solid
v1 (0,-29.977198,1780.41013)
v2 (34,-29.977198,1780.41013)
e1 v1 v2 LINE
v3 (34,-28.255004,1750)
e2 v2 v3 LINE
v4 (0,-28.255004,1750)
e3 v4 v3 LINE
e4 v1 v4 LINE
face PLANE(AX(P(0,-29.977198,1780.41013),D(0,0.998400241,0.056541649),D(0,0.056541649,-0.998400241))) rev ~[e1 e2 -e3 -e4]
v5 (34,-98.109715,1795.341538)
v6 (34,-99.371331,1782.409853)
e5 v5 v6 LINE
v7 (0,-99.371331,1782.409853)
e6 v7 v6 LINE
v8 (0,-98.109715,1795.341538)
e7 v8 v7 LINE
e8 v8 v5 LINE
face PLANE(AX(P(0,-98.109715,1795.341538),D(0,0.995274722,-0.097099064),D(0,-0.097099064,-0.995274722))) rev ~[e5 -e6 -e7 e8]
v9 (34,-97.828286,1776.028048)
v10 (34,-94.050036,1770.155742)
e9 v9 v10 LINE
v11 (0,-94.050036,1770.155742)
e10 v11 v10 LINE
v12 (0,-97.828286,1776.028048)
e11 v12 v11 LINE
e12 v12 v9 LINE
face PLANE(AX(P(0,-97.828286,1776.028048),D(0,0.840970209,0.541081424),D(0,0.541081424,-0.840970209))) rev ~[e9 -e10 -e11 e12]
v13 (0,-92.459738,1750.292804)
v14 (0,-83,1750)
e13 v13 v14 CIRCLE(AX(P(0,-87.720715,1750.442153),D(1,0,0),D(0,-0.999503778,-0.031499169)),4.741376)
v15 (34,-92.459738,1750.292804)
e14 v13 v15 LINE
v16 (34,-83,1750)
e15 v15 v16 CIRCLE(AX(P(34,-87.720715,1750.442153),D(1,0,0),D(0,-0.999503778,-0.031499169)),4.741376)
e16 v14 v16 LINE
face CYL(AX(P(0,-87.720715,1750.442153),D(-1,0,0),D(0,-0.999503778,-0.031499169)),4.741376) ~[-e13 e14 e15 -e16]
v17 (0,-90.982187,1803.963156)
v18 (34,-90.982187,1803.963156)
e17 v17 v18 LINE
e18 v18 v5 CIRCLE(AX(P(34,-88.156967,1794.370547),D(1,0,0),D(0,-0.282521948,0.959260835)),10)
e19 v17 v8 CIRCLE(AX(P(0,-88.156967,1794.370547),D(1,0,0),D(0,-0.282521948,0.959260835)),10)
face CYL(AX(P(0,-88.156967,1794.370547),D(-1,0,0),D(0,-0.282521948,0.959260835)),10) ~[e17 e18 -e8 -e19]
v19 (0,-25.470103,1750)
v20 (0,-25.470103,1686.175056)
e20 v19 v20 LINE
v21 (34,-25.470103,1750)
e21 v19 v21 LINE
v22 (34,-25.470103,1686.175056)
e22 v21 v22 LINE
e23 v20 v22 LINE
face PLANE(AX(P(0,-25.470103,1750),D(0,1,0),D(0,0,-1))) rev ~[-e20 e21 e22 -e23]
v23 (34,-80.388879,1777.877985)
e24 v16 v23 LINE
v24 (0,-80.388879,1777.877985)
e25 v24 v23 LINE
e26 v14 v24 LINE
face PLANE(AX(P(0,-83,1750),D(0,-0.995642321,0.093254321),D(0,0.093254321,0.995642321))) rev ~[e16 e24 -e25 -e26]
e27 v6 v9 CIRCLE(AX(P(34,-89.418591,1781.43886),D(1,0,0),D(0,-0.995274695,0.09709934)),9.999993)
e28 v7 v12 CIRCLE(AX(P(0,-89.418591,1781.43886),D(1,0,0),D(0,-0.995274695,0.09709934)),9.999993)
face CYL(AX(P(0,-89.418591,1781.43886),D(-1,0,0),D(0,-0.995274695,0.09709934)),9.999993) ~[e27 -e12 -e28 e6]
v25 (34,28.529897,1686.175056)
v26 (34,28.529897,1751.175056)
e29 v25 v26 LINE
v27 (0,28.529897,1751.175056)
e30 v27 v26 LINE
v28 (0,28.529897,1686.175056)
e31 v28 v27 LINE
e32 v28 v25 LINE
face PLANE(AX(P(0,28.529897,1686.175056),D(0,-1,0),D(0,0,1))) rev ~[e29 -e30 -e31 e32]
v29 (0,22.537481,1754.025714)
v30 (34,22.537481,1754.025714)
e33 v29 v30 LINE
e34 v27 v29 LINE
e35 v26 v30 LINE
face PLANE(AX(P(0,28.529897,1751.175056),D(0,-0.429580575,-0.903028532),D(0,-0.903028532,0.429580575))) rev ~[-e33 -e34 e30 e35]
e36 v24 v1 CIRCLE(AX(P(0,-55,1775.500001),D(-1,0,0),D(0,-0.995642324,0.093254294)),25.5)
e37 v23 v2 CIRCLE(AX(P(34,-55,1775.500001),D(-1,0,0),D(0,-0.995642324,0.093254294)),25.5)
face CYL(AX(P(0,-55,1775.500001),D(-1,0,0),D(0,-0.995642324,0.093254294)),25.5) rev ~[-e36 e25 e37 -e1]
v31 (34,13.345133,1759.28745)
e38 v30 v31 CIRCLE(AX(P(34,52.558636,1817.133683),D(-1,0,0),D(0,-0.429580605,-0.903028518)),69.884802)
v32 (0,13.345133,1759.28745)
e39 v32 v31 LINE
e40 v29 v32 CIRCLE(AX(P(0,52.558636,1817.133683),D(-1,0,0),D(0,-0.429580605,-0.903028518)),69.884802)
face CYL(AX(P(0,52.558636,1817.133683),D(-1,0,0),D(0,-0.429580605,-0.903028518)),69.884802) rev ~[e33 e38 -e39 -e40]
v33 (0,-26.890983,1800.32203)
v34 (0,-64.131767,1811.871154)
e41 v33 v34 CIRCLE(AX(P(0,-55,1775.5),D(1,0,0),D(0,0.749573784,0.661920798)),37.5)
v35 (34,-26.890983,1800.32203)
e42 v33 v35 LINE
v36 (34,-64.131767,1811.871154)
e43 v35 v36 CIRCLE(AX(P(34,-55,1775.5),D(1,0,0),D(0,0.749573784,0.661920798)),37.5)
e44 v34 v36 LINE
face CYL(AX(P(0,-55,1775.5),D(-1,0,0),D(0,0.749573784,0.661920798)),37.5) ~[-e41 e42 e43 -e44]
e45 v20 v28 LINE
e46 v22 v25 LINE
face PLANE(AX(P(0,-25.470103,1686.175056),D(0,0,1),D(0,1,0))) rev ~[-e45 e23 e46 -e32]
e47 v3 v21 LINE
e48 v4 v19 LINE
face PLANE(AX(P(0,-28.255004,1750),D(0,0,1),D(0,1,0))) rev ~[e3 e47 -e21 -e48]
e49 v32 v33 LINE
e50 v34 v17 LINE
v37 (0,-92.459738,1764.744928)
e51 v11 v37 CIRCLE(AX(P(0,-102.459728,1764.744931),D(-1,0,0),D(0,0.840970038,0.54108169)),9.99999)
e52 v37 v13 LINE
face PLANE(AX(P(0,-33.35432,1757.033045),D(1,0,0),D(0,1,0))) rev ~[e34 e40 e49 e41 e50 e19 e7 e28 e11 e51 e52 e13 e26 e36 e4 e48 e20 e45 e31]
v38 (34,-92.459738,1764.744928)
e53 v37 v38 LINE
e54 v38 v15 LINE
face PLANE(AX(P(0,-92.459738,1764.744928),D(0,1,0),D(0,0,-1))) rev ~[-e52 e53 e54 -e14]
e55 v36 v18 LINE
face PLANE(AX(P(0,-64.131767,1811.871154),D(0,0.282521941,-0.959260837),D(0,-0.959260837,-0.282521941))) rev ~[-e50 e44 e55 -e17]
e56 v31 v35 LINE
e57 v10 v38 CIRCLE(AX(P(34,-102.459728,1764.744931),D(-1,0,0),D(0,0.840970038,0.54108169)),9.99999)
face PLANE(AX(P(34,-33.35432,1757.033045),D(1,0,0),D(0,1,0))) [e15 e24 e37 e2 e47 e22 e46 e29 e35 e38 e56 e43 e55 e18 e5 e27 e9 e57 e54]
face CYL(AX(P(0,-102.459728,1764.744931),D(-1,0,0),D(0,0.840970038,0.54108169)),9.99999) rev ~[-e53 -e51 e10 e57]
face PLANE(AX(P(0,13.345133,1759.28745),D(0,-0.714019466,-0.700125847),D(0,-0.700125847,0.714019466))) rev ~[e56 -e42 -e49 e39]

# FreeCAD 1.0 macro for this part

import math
import FreeCAD as App
import Part
import Sketcher

V = App.Vector

doc = App.newDocument("Part")
body = doc.addObject("PartDesign::Body", "Body")

# Sketch on YZ plane
sketch1 = body.newObject("Sketcher::SketchObject", "Sketch")
sketch1.AttachmentSupport = (doc.getObject("YZ_Plane"), [""])
sketch1.MapMode = "FlatFace"
sketch1.addGeometry([
    Part.ArcOfCircle(Part.Circle(V(-55, 1775.5, 0), V(0, 0, 1), 37.5), math.radians(41.446529), math.radians(104.09402)),  # 0
    Part.LineSegment(V(-64.131767, 1811.871154, 0), V(-90.982187, 1803.963156, 0)),  # 1
    Part.ArcOfCircle(Part.Circle(V(-88.156967, 1794.370547, 0), V(0, 0, 1), 10), math.radians(106.41078), math.radians(174.427854)),  # 2
    Part.LineSegment(V(-98.109715, 1795.341538, 0), V(-99.371331, 1782.409853, 0)),  # 3
    Part.ArcOfCircle(Part.Circle(V(-89.418591, 1781.43886, 0), V(0, 0, 1), 9.999993), math.radians(174.427838), math.radians(212.7573)),  # 4
    Part.LineSegment(V(-97.828286, 1776.028048, 0), V(-94.050036, 1770.155742, 0)),  # 5
    Part.ArcOfCircle(Part.Circle(V(-102.459728, 1764.744931, 0), V(0, 0, 1), 9.99999), math.radians(-0.000015), math.radians(32.757305)),  # 6
    Part.LineSegment(V(-92.459738, 1764.744928, 0), V(-92.459738, 1750.292804, 0)),  # 7
    Part.ArcOfCircle(Part.Circle(V(-87.720715, 1750.442153, 0), V(0, 0, 1), 4.741376), math.radians(-178.194932), math.radians(-5.350849)),  # 8
    Part.LineSegment(V(-83, 1750, 0), V(-80.388879, 1777.877985, 0)),  # 9
    Part.ArcOfCircle(Part.Circle(V(-55, 1775.500001, 0), V(0, 0, 1), 25.5), math.radians(11.101876), math.radians(174.649148)),  # 10
    Part.LineSegment(V(-29.977198, 1780.41013, 0), V(-28.255004, 1750, 0)),  # 11
    Part.LineSegment(V(-28.255004, 1750, 0), V(-25.470103, 1750, 0)),  # 12
    Part.LineSegment(V(-25.470103, 1750, 0), V(-25.470103, 1686.175056, 0)),  # 13
    Part.LineSegment(V(-25.470103, 1686.175056, 0), V(28.529897, 1686.175056, 0)),  # 14
    Part.LineSegment(V(28.529897, 1686.175056, 0), V(28.529897, 1751.175056, 0)),  # 15
    Part.LineSegment(V(28.529897, 1751.175056, 0), V(22.537481, 1754.025714, 0)),  # 16
    Part.ArcOfCircle(Part.Circle(V(52.558636, 1817.133683, 0), V(0, 0, 1), 69.884802), math.radians(-124.133035), math.radians(-115.440947)),  # 17
    Part.LineSegment(V(13.345133, 1759.28745, 0), V(-26.890983, 1800.32203, 0)),  # 18
], False)
sketch1.addConstraint([
    Sketcher.Constraint("Coincident", 0, 2, 1, 1),
    Sketcher.Constraint("Coincident", 1, 2, 2, 1),
    Sketcher.Constraint("Coincident", 2, 2, 3, 1),
    Sketcher.Constraint("Coincident", 3, 2, 4, 1),
    Sketcher.Constraint("Coincident", 4, 2, 5, 1),
    Sketcher.Constraint("Coincident", 5, 2, 6, 2),
    Sketcher.Constraint("Coincident", 6, 1, 7, 1),
    Sketcher.Constraint("Coincident", 7, 2, 8, 1),
    Sketcher.Constraint("Coincident", 8, 2, 9, 1),
    Sketcher.Constraint("Coincident", 9, 2, 10, 2),
    Sketcher.Constraint("Coincident", 10, 1, 11, 1),
    Sketcher.Constraint("Coincident", 11, 2, 12, 1),
    Sketcher.Constraint("Coincident", 12, 2, 13, 1),
    Sketcher.Constraint("Coincident", 13, 2, 14, 1),
    Sketcher.Constraint("Coincident", 14, 2, 15, 1),
    Sketcher.Constraint("Coincident", 15, 2, 16, 1),
    Sketcher.Constraint("Coincident", 16, 2, 17, 2),
    Sketcher.Constraint("Coincident", 17, 1, 18, 1),
    Sketcher.Constraint("Coincident", 18, 2, 0, 1),
    Sketcher.Constraint("Vertical", 7),
    Sketcher.Constraint("Horizontal", 12),
    Sketcher.Constraint("Vertical", 13),
    Sketcher.Constraint("Horizontal", 14),
    Sketcher.Constraint("Vertical", 15),
    Sketcher.Constraint("Coincident", 10, 3, 0, 3),
    Sketcher.Constraint("Radius", 2, 10.0),
    Sketcher.Constraint("Radius", 0, 37.5),
    Sketcher.Constraint("Radius", 10, 25.5),
    Sketcher.Constraint("DistanceX", 14, 1, 14, 2, 54.0),
    Sketcher.Constraint("DistanceY", 15, 1, 15, 2, 65.0),
    Sketcher.Constraint("Distance", 9, 28.0),
    Sketcher.Constraint("DistanceX", 0, 3, -1, 1, 55.0),
    Sketcher.Constraint("DistanceX", 8, 2, -1, 1, 83.0),
    Sketcher.Constraint("DistanceY", -1, 1, 8, 2, 1750.0),
    Sketcher.Constraint("DistanceY", -1, 1, 11, 2, 1750.0),
    Sketcher.Constraint("DistanceY", -1, 1, 0, 3, 1775.5),
    Sketcher.Constraint("Radius", 17, 69.884802),
    Sketcher.Constraint("Radius", 6, 9.99999),
    Sketcher.Constraint("DistanceX", 12, 1, 12, 2, 2.784901),
    Sketcher.Constraint("Radius", 4, 9.999993),
    Sketcher.Constraint("Radius", 8, 4.741376),
    Sketcher.Constraint("DistanceY", 1, 2, 0, 2, 7.907998),
    Sketcher.Constraint("DistanceX", 10, 1, -1, 1, 29.977198),
    Sketcher.Constraint("DistanceX", 2, 3, 0, 2, 24.0252),
    Sketcher.Constraint("DistanceY", 4, 2, 2, 3, 18.342499),
    Sketcher.Constraint("DistanceX", 5, 2, 7, 2, 1.590298),
    Sketcher.Constraint("DistanceY", 10, 1, 18, 2, 19.9119),
    Sketcher.Constraint("Distance", 1, 27.990739),
    Sketcher.Constraint("Distance", 3, 12.993081),
    Sketcher.Constraint("Distance", 16, 6.63591),
    Sketcher.Constraint("DistanceY", 7, 2, 7, 1, 14.452124),
    Sketcher.Constraint("DistanceY", 13, 2, 13, 1, 63.824944),
    Sketcher.Constraint("DistanceX", 4, 3, -1, 1, 89.418591),
    Sketcher.Constraint("DistanceY", -1, 1, 4, 3, 1781.43886),
    Sketcher.Constraint("DistanceY", -1, 1, 6, 3, 1764.744931),
    Sketcher.Constraint("DistanceY", -1, 1, 2, 2, 1795.341538),
    Sketcher.Constraint("DistanceX", 3, 2, -1, 1, 99.371331),
    Sketcher.Constraint("DistanceX", 6, 1, -1, 1, 92.459738),
    Sketcher.Constraint("DistanceY", -1, 1, 6, 1, 1764.744928),
    Sketcher.Constraint("DistanceX", -1, 1, 16, 2, 22.537481),
    Sketcher.Constraint("DistanceY", -1, 1, 17, 1, 1759.28745),
    Sketcher.Constraint("DistanceX", 8, 3, 17, 3, 140.279351),
    Sketcher.Constraint("DistanceY", 8, 3, 17, 3, 66.691529),
])
pad1 = body.newObject("PartDesign::Pad", "Pad")
pad1.Profile = sketch1
pad1.Length = 34

doc.recompute()
